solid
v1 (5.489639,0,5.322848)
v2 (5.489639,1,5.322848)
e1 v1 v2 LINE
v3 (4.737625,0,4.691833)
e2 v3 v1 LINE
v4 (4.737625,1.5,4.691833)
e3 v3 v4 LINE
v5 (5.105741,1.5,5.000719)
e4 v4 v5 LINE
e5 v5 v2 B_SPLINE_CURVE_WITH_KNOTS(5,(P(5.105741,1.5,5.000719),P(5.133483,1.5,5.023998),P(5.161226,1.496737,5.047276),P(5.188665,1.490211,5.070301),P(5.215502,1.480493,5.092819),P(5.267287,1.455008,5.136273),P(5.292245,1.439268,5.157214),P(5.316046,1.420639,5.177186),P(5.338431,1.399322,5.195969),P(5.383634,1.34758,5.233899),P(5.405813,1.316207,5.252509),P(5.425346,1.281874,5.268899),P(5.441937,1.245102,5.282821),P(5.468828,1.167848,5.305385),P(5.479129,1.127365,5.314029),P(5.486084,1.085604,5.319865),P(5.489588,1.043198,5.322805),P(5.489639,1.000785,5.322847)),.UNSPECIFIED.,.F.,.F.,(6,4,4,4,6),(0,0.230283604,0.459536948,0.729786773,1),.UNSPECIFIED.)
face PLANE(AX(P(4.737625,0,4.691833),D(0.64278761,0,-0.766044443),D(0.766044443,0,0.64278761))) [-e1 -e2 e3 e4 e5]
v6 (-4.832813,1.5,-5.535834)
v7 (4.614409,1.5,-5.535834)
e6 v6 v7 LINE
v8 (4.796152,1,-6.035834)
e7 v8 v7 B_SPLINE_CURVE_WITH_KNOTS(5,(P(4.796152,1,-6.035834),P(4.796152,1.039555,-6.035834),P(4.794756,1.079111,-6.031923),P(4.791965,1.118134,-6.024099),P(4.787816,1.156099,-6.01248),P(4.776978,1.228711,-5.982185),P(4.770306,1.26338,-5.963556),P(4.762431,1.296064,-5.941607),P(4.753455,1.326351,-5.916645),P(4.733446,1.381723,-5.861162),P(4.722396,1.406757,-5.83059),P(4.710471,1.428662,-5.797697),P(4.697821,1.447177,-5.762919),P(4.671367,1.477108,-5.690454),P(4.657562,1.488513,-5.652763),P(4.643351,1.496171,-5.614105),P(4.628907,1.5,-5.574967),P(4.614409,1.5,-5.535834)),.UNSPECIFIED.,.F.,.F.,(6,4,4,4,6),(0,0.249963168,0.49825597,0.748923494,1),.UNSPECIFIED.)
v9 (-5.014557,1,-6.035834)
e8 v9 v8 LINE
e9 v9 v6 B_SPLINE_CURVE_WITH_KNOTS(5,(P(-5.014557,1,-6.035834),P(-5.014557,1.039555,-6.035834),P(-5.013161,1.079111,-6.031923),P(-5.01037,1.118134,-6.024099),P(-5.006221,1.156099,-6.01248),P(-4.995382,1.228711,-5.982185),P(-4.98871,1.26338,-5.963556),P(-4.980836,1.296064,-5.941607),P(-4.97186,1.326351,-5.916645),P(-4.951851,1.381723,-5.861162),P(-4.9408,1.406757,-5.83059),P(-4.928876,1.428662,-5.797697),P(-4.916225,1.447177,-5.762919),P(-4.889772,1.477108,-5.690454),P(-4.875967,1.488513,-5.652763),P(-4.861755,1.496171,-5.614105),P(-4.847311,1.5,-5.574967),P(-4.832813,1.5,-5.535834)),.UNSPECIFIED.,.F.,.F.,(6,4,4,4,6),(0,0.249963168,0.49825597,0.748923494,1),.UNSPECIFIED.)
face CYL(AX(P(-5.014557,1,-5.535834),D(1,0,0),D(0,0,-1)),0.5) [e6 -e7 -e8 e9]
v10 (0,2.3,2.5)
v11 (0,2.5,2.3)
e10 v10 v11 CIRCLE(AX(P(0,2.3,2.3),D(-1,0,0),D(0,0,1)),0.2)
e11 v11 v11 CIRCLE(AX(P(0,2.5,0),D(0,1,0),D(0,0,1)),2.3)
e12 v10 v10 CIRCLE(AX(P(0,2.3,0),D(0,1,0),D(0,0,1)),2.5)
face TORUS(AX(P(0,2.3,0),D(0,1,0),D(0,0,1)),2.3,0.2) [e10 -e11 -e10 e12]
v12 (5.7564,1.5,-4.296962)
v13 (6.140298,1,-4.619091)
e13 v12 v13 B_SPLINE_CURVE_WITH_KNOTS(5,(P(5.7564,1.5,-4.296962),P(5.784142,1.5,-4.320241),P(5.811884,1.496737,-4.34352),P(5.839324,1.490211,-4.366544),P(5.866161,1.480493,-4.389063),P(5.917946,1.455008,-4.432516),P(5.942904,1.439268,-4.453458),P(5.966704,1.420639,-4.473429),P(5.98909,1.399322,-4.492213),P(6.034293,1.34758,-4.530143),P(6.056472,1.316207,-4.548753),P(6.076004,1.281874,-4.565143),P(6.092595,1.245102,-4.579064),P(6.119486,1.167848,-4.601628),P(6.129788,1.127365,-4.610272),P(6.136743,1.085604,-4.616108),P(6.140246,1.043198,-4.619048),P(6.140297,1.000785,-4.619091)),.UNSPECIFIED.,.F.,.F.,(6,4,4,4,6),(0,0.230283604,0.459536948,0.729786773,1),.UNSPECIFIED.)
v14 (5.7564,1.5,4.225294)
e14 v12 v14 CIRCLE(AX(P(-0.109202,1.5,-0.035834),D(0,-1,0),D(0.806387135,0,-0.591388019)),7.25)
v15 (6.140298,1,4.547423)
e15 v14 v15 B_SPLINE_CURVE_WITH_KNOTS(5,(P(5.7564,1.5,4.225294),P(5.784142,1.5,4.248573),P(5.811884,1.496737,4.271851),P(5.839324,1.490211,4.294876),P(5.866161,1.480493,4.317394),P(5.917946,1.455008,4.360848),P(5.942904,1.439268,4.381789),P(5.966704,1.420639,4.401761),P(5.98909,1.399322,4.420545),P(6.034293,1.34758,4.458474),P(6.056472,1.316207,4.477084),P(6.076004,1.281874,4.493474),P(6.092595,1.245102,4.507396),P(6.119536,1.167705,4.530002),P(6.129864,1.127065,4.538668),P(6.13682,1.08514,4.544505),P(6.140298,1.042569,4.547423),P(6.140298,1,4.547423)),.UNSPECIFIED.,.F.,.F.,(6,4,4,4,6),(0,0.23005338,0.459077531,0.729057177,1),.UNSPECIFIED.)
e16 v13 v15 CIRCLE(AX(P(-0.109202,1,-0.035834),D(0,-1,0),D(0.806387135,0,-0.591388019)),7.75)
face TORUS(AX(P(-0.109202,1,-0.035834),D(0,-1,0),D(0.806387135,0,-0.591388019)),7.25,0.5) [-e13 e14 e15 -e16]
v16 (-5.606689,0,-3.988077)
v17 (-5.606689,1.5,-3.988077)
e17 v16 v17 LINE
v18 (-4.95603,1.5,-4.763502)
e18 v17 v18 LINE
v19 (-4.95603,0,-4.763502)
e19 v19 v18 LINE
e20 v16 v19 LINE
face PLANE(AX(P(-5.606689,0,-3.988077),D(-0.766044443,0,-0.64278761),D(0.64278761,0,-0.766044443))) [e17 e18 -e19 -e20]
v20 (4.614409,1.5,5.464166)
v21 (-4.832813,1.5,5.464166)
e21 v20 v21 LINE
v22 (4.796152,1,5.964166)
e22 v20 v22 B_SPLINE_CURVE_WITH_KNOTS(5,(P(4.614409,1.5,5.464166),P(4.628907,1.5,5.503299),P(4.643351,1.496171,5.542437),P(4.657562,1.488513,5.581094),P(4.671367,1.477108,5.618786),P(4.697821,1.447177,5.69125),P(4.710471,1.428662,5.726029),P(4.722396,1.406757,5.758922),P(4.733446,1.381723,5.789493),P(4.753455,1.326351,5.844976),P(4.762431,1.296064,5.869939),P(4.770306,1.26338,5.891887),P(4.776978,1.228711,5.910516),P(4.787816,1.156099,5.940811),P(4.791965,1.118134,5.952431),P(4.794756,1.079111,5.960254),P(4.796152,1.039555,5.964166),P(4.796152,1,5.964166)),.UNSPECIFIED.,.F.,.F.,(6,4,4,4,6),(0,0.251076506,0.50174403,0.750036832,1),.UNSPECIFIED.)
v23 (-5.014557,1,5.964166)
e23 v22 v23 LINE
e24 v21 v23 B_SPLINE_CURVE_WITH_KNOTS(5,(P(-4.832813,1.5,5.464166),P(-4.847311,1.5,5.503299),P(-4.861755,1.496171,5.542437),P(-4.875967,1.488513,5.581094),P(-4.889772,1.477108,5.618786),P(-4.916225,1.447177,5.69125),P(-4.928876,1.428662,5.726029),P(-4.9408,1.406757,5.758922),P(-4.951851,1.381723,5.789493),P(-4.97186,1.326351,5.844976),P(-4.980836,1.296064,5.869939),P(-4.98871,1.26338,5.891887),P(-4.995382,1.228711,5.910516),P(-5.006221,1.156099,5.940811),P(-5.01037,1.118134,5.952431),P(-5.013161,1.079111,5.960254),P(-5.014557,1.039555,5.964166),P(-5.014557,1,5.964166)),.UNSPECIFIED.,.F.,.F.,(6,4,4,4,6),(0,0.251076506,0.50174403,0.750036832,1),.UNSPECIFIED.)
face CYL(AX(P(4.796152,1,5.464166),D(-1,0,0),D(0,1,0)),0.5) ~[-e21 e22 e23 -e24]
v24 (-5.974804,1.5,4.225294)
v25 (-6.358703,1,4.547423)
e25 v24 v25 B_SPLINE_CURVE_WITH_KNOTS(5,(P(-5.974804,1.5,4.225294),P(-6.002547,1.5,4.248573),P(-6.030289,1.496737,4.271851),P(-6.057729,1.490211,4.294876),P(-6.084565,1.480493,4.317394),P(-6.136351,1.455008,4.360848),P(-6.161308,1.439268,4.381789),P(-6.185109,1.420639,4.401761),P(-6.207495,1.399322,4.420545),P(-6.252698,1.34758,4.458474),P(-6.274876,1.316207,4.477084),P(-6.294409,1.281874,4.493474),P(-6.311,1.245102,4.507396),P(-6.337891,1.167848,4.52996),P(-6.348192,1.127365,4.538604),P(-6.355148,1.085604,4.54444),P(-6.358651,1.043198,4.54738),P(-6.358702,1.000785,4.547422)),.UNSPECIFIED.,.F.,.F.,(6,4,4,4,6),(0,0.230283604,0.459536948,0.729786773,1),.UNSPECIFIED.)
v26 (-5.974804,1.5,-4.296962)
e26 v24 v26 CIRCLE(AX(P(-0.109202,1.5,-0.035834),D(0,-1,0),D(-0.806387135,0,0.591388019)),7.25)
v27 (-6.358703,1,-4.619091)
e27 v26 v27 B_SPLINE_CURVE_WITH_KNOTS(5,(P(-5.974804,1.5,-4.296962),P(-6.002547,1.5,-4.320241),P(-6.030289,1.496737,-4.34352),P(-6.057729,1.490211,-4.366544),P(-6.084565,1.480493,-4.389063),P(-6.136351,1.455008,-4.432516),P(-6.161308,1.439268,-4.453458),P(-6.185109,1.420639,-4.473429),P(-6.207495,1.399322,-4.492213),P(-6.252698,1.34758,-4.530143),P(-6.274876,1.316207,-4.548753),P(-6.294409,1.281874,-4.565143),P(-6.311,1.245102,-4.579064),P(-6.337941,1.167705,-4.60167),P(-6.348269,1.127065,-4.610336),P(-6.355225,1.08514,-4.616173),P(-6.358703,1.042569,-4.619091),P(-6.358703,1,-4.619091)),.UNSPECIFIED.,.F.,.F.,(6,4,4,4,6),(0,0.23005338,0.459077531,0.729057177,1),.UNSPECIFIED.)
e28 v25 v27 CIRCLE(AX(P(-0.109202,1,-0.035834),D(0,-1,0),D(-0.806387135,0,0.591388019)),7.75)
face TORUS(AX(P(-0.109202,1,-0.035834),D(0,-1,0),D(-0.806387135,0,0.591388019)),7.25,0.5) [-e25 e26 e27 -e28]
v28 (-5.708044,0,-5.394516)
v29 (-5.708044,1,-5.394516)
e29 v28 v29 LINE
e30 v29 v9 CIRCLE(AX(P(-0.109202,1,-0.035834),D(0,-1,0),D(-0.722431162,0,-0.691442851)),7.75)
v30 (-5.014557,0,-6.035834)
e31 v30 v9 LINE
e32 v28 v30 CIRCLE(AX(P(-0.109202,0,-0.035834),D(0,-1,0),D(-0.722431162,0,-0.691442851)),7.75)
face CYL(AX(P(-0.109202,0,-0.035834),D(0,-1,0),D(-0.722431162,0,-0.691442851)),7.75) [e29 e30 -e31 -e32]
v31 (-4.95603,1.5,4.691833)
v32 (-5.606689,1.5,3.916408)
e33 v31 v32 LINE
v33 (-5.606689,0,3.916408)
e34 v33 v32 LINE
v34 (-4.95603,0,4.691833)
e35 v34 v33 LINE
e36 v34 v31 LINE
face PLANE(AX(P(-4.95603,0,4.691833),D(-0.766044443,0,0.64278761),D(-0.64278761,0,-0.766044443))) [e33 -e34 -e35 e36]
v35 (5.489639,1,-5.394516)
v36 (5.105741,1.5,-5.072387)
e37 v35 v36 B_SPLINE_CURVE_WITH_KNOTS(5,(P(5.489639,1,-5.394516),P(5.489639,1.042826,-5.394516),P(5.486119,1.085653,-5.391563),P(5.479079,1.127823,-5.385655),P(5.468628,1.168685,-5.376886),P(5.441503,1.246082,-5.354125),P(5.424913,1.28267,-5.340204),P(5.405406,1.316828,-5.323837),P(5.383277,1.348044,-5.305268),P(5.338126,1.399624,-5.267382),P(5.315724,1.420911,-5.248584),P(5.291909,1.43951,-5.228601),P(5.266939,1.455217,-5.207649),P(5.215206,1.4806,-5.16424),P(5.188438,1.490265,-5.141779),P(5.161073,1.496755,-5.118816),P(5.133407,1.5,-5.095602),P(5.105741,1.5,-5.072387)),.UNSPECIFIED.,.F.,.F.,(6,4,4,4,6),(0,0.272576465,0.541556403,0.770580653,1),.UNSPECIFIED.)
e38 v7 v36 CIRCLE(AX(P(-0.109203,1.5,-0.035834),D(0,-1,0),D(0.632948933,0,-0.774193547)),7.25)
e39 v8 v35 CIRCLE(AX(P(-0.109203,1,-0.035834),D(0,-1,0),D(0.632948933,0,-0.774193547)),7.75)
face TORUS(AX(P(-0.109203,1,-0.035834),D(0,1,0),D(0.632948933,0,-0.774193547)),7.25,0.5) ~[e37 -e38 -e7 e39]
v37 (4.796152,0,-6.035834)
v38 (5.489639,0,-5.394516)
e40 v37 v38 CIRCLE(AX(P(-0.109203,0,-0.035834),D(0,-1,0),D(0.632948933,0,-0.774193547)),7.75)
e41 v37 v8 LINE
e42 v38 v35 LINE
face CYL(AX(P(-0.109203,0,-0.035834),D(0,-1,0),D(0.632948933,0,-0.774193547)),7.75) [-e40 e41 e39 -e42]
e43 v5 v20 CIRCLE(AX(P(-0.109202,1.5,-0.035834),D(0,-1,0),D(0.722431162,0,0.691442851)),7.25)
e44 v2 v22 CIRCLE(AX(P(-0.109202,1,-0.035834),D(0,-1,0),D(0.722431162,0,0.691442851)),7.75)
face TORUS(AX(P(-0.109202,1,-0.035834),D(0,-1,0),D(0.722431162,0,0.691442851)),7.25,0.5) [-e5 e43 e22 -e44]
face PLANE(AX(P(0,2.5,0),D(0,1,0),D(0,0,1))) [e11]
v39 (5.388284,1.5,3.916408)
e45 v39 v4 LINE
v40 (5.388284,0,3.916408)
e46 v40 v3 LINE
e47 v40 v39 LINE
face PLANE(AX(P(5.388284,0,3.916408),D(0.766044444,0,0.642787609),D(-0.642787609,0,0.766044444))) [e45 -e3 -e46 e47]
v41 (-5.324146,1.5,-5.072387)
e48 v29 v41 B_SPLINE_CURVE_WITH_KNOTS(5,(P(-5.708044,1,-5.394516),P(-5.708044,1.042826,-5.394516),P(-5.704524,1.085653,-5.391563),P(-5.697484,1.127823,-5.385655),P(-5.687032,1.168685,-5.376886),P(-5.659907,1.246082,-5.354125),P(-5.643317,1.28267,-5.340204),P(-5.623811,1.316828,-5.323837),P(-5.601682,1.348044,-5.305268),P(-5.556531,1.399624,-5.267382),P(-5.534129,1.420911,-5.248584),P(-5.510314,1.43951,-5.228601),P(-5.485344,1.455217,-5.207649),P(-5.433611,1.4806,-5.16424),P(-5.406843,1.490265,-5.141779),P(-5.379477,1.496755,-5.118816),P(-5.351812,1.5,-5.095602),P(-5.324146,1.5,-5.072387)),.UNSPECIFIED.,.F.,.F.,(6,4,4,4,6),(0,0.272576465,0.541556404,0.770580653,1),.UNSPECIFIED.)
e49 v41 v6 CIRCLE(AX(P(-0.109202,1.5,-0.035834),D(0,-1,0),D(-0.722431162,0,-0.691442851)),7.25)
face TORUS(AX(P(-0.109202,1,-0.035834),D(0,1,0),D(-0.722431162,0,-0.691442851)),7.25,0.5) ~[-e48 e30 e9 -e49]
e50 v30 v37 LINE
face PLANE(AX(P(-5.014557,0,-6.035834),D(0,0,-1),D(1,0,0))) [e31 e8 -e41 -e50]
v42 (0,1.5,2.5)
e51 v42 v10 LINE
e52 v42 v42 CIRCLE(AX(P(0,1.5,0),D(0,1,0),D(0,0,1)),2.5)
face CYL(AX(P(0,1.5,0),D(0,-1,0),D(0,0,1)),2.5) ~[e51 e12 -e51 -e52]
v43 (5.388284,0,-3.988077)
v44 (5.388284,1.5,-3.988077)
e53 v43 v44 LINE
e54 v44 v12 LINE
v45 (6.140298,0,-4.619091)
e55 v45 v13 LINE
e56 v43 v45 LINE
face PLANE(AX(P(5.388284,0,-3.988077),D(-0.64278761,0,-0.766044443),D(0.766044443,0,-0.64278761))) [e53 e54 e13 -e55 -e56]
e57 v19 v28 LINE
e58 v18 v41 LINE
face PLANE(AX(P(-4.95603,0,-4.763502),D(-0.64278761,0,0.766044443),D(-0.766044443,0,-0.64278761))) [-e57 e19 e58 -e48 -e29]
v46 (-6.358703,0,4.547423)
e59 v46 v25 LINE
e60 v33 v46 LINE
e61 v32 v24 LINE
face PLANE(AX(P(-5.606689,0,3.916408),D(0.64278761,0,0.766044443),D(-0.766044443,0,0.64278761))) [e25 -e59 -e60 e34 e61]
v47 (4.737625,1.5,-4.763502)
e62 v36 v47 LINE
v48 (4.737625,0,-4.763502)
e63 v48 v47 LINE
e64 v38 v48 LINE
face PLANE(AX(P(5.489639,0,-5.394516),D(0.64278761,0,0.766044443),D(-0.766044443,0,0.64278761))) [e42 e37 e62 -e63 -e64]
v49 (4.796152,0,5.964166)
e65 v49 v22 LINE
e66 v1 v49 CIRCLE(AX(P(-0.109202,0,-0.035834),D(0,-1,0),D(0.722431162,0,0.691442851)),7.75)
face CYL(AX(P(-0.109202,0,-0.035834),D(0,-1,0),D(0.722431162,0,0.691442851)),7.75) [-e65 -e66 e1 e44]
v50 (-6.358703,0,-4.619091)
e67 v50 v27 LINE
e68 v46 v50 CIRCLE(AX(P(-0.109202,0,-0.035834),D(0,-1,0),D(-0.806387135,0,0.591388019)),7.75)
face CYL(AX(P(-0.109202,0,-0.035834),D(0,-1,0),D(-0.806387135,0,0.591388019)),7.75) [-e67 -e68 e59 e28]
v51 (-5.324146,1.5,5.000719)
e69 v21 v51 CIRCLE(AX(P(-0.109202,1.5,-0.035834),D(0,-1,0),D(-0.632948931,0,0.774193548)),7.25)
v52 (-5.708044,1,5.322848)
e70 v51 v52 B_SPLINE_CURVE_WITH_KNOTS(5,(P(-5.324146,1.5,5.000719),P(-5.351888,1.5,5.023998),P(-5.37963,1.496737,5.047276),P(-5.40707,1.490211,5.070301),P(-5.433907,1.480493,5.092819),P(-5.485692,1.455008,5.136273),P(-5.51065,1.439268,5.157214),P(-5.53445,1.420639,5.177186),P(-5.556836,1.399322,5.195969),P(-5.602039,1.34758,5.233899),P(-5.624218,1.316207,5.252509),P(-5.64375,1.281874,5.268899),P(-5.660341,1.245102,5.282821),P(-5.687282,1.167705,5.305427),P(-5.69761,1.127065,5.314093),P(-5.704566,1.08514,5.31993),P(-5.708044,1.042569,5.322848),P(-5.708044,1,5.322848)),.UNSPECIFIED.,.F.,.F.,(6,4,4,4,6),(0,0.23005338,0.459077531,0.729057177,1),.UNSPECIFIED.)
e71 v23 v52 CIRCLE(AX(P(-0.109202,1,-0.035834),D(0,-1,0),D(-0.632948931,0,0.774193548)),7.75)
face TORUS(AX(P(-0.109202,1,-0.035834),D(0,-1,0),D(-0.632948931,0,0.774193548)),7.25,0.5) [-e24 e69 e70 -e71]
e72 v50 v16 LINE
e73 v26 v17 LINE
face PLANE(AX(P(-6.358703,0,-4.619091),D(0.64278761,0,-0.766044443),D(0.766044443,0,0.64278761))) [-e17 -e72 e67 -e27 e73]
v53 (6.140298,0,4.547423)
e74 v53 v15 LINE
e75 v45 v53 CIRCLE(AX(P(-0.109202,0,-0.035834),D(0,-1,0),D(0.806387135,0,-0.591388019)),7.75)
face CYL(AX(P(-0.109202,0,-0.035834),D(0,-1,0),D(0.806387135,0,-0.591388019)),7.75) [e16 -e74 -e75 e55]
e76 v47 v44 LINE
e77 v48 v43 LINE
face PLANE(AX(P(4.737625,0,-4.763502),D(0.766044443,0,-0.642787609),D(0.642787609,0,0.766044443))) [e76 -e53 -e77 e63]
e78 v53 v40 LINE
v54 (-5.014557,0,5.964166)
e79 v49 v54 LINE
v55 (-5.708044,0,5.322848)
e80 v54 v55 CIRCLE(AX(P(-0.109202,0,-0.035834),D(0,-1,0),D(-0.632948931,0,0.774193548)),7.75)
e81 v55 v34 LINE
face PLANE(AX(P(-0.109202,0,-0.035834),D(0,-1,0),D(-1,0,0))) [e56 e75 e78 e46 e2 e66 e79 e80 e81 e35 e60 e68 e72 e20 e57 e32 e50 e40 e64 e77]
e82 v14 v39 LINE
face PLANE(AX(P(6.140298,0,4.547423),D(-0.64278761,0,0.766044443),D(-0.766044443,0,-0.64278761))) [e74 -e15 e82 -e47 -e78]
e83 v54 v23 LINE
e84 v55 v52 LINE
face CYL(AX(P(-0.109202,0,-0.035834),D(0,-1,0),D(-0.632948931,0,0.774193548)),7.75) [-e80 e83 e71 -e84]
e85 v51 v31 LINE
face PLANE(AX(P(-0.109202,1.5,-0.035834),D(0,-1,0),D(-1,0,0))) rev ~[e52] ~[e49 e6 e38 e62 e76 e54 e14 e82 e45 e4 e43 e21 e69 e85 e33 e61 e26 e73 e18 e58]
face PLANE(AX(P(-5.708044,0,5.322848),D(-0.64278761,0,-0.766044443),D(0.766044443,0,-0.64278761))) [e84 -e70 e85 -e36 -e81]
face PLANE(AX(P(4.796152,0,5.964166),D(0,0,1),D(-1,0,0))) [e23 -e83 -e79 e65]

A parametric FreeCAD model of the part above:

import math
import FreeCAD as App
import Part
import Sketcher
Q = App.Units.Quantity


def edges_at(feature, points):
    """Names of the edges that pass closest to the given points."""
    edges = feature.Shape.Edges
    near = lambda p: min(range(len(edges)), key=lambda i: edges[i].distToShape(Part.Vertex(*p))[0])
    return sorted({f"Edge{near(p) + 1}" for p in points})

doc = App.newDocument("Part")
body = doc.addObject("PartDesign::Body", "Body")

sketch1 = body.newObject("Sketcher::SketchObject", "Sketch")
sketch1.AttachmentSupport = (doc.getObject("XZ_Plane"), [""])
sketch1.MapMode = "FlatFace"
sketch1.addGeometry([
    Part.LineSegment(App.Vector(4.8, -6, 0), App.Vector(-5, -6, 0)),
    Part.ArcOfCircle(Part.Circle(App.Vector(-0.1, 0, 0), App.Vector(0, 0, 1), 7.8), math.radians(-136.26), math.radians(-129.27)),
    Part.LineSegment(App.Vector(-5.7, -5.4, 0), App.Vector(-5, -4.8, 0)),
    Part.LineSegment(App.Vector(-5, -4.8, 0), App.Vector(-5.6, -4, 0)),
    Part.LineSegment(App.Vector(-5.6, -4, 0), App.Vector(-6.4, -4.6, 0)),
    Part.ArcOfCircle(Part.Circle(App.Vector(-0.1, 0, 0), App.Vector(0, 0, 1), 7.8), math.radians(144), math.radians(216)),
    Part.LineSegment(App.Vector(-6.4, 4.5, 0), App.Vector(-5.6, 3.9, 0)),
    Part.LineSegment(App.Vector(-5.6, 3.9, 0), App.Vector(-5, 4.7, 0)),
    Part.LineSegment(App.Vector(-5, 4.7, 0), App.Vector(-5.7, 5.3, 0)),
    Part.ArcOfCircle(Part.Circle(App.Vector(-0.1, 0, 0), App.Vector(0, 0, 1), 7.8), math.radians(129.27), math.radians(136.26)),
    Part.LineSegment(App.Vector(-5, 6, 0), App.Vector(4.8, 6, 0)),
    Part.ArcOfCircle(Part.Circle(App.Vector(-0.1, 0, 0), App.Vector(0, 0, 1), 7.8), math.radians(43.74), math.radians(50.73)),
    Part.LineSegment(App.Vector(5.5, 5.3, 0), App.Vector(4.7, 4.7, 0)),
    Part.LineSegment(App.Vector(4.7, 4.7, 0), App.Vector(5.4, 3.9, 0)),
    Part.LineSegment(App.Vector(5.4, 3.9, 0), App.Vector(6.1, 4.5, 0)),
    Part.ArcOfCircle(Part.Circle(App.Vector(-0.1, 0, 0), App.Vector(0, 0, 1), 7.8), math.radians(-36), math.radians(36)),
    Part.LineSegment(App.Vector(6.1, -4.6, 0), App.Vector(5.4, -4, 0)),
    Part.LineSegment(App.Vector(5.4, -4, 0), App.Vector(4.7, -4.8, 0)),
    Part.LineSegment(App.Vector(4.7, -4.8, 0), App.Vector(5.5, -5.4, 0)),
    Part.ArcOfCircle(Part.Circle(App.Vector(-0.1, 0, 0), App.Vector(0, 0, 1), 7.8), math.radians(-50.73), math.radians(-43.74)),
], False)
sketch1.addConstraint([
    Sketcher.Constraint("Coincident", 0, 2, 1, 2),
    Sketcher.Constraint("Coincident", 1, 1, 2, 1),
    Sketcher.Constraint("Coincident", 2, 2, 3, 1),
    Sketcher.Constraint("Coincident", 3, 2, 4, 1),
    Sketcher.Constraint("Coincident", 4, 2, 5, 2),
    Sketcher.Constraint("Coincident", 5, 1, 6, 1),
    Sketcher.Constraint("Coincident", 6, 2, 7, 1),
    Sketcher.Constraint("Coincident", 7, 2, 8, 1),
    Sketcher.Constraint("Coincident", 8, 2, 9, 2),
    Sketcher.Constraint("Coincident", 9, 1, 10, 1),
    Sketcher.Constraint("Coincident", 10, 2, 11, 2),
    Sketcher.Constraint("Coincident", 11, 1, 12, 1),
    Sketcher.Constraint("Coincident", 12, 2, 13, 1),
    Sketcher.Constraint("Coincident", 13, 2, 14, 1),
    Sketcher.Constraint("Coincident", 14, 2, 15, 2),
    Sketcher.Constraint("Coincident", 15, 1, 16, 1),
    Sketcher.Constraint("Coincident", 16, 2, 17, 1),
    Sketcher.Constraint("Coincident", 17, 2, 18, 1),
    Sketcher.Constraint("Coincident", 18, 2, 19, 2),
    Sketcher.Constraint("Coincident", 19, 1, 0, 1),
    Sketcher.Constraint("Horizontal", 0),
    Sketcher.Constraint("Horizontal", 10),
    Sketcher.Constraint("Coincident", 5, 3, 1, 3),
    Sketcher.Constraint("Coincident", 9, 3, 1, 3),
    Sketcher.Constraint("Coincident", 11, 3, 1, 3),
    Sketcher.Constraint("Coincident", 15, 3, 1, 3),
    Sketcher.Constraint("Coincident", 19, 3, 1, 3),
    Sketcher.Constraint("Equal", 1, 5),
    Sketcher.Constraint("Equal", 5, 9),
    Sketcher.Constraint("Equal", 9, 11),
    Sketcher.Constraint("Equal", 11, 15),
    Sketcher.Constraint("Equal", 15, 19),
    Sketcher.Constraint("Perpendicular", 2, 3),
    Sketcher.Constraint("Perpendicular", 3, 4),
    Sketcher.Constraint("Perpendicular", 6, 7),
    Sketcher.Constraint("Perpendicular", 7, 8),
    Sketcher.Constraint("Parallel", 4, 12),
    Sketcher.Constraint("Perpendicular", 12, 13),
    Sketcher.Constraint("Perpendicular", 13, 14),
    Sketcher.Constraint("Parallel", 8, 16),
    Sketcher.Constraint("Perpendicular", 16, 17),
    Sketcher.Constraint("Perpendicular", 17, 18),
    Sketcher.Constraint("Horizontal", 8, 2, 11, 1),
    Sketcher.Constraint("Horizontal", 7, 2, 12, 2),
    Sketcher.Constraint("Horizontal", 6, 2, 13, 2),
    Sketcher.Constraint("Horizontal", 5, 1, 14, 2),
    Sketcher.Constraint("Horizontal", 4, 2, 15, 1),
    Sketcher.Constraint("Horizontal", 3, 2, 16, 2),
    Sketcher.Constraint("Horizontal", 2, 2, 17, 2),
    Sketcher.Constraint("Vertical", 4, 2, 5, 1),
    Sketcher.Constraint("Vertical", 3, 2, 6, 2),
    Sketcher.Constraint("Vertical", 2, 2, 7, 2),
    Sketcher.Constraint("Vertical", 0, 2, 9, 1),
    Sketcher.Constraint("Equal", 2, 4),
    Sketcher.Constraint("Angle", 2, Q("40 deg")),
    Sketcher.Constraint("Radius", 1, 7.75),
    Sketcher.Constraint("DistanceY", 0, 2, 11, 3, 6.0),
    Sketcher.Constraint("DistanceY", 2, 2, -1, 1, 4.763502),
    Sketcher.Constraint("DistanceX", 4, 2, 19, 3, 6.2495),
    Sketcher.Constraint("DistanceX", 2, 2, -1, 1, 4.95603),
    Sketcher.Constraint("DistanceY", 4, 2, -1, 1, 4.619091),
])
pad1 = body.newObject("PartDesign::Pad", "Pad")
pad1.Profile = sketch1
pad1.Length = 1.5
pad1.Reversed = True

sketch2 = body.newObject("Sketcher::SketchObject", "Sketch001")
sketch2.AttachmentSupport = (doc.getObject("XZ_Plane"), [""])
sketch2.MapMode = "FlatFace"
sketch2.AttachmentOffset = App.Placement(App.Vector(0, 0, -1.5), App.Rotation())
sketch2.addGeometry(Part.Circle(App.Vector(0, 0, 0), App.Vector(0, 0, 1), 2.5), False)
sketch2.addConstraint([
    Sketcher.Constraint("Coincident", 0, 3, -1, 1),
    Sketcher.Constraint("Diameter", 0, 5.0),
])
pad2 = body.newObject("PartDesign::Pad", "Pad001")
pad2.Profile = sketch2
pad2.Length = 1
pad2.Reversed = True
doc.recompute()

fillet = body.newObject("PartDesign::Fillet", "Fillet")
fillet.Base = (pad2, edges_at(pad2, [
    (-7.859, 1.5, -0.036),
    (-5.371, 1.5, 5.654),
    (-0.109, 1.5, 5.964),
    (5.153, 1.5, 5.654),
    (-5.371, 1.5, -5.726),
    (7.641, 1.5, -0.036),
    (5.153, 1.5, -5.726),
    (-0.109, 1.5, -6.036),
]))
fillet.Radius = 0.5
doc.recompute()

fillet2 = body.newObject("PartDesign::Fillet", "Fillet001")
fillet2.Base = (fillet, edges_at(fillet, [(0, 2.5, -2.5)]))
fillet2.Radius = 0.2

doc.recompute()
